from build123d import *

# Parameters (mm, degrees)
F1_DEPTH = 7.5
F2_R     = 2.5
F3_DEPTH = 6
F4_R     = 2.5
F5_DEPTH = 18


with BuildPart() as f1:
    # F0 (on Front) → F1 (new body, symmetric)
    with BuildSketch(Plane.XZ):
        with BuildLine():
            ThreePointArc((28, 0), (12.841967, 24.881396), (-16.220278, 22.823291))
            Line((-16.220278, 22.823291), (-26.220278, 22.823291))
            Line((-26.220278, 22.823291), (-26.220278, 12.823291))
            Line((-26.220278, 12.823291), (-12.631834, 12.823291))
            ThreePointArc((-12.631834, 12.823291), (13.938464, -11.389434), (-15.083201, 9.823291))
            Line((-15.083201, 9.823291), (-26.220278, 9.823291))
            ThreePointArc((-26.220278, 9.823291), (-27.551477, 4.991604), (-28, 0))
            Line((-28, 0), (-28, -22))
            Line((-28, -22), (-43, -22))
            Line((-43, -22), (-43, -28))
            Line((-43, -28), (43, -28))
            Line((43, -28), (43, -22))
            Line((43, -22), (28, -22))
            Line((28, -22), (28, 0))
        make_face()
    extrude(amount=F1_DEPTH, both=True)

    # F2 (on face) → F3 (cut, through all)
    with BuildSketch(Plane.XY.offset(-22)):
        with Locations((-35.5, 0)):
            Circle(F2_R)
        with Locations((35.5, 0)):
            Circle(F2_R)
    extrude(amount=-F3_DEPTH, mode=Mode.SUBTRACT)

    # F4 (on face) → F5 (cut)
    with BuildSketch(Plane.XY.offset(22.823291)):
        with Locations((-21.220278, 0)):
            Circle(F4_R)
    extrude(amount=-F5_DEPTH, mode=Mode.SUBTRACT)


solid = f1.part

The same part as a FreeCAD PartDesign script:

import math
import FreeCAD as App
import Part
import Sketcher

V = App.Vector
Q = App.Units.Quantity

doc = App.newDocument("Part")
body = doc.addObject("PartDesign::Body", "Body")

sketch1 = body.newObject("Sketcher::SketchObject", "Sketch")
sketch1.AttachmentSupport = (doc.getObject("XZ_Plane"), [""])
sketch1.MapMode = "FlatFace"
sketch1.addGeometry([
    Part.ArcOfCircle(Part.Circle(V(0, 0, 0), V(0, 0, 1), 28), math.radians(0), math.radians(125)),
    Part.LineSegment(V(-16.2, 22.8, 0), V(-26.2, 22.8, 0)),
    Part.LineSegment(V(-26.2, 22.8, 0), V(-26.2, 12.8, 0)),
    Part.LineSegment(V(-26.2, 12.8, 0), V(-12.6, 12.8, 0)),
    Part.ArcOfCircle(Part.Circle(V(0, 0, 0), V(0, 0, 1), 18), math.radians(147), math.radians(495)),
    Part.LineSegment(V(-15.1, 9.8, 0), V(-26.2, 9.8, 0)),
    Part.ArcOfCircle(Part.Circle(V(0, 0, 0), V(0, 0, 1), 28), math.radians(159), math.radians(180)),
    Part.LineSegment(V(-28, 0, 0), V(-28, -22, 0)),
    Part.LineSegment(V(-28, -22, 0), V(-43, -22, 0)),
    Part.LineSegment(V(-43, -22, 0), V(-43, -28, 0)),
    Part.LineSegment(V(-43, -28, 0), V(43, -28, 0)),
    Part.LineSegment(V(43, -28, 0), V(43, -22, 0)),
    Part.LineSegment(V(43, -22, 0), V(28, -22, 0)),
    Part.LineSegment(V(28, -22, 0), V(28, 0, 0)),
], False)
sketch1.addConstraint([
    Sketcher.Constraint("Coincident", 0, 2, 1, 1),
    Sketcher.Constraint("Coincident", 1, 2, 2, 1),
    Sketcher.Constraint("Coincident", 2, 2, 3, 1),
    Sketcher.Constraint("Coincident", 3, 2, 4, 2),
    Sketcher.Constraint("Coincident", 4, 1, 5, 1),
    Sketcher.Constraint("Coincident", 5, 2, 6, 1),
    Sketcher.Constraint("Tangent", 6, 2, 7, 1),
    Sketcher.Constraint("Coincident", 7, 2, 8, 1),
    Sketcher.Constraint("Coincident", 8, 2, 9, 1),
    Sketcher.Constraint("Coincident", 9, 2, 10, 1),
    Sketcher.Constraint("Coincident", 10, 2, 11, 1),
    Sketcher.Constraint("Coincident", 11, 2, 12, 1),
    Sketcher.Constraint("Coincident", 12, 2, 13, 1),
    Sketcher.Constraint("Tangent", 13, 2, 0, 1),
    Sketcher.Constraint("Horizontal", 1),
    Sketcher.Constraint("Vertical", 2),
    Sketcher.Constraint("Horizontal", 3),
    Sketcher.Constraint("Horizontal", 5),
    Sketcher.Constraint("Vertical", 7),
    Sketcher.Constraint("Horizontal", 8),
    Sketcher.Constraint("Vertical", 9),
    Sketcher.Constraint("Horizontal", 10),
    Sketcher.Constraint("Vertical", 11),
    Sketcher.Constraint("Horizontal", 12),
    Sketcher.Constraint("Vertical", 13),
    Sketcher.Constraint("Coincident", 0, 3, -1, 1),
    Sketcher.Constraint("Coincident", 4, 3, -1, 1),
    Sketcher.Constraint("Symmetric", 6, 2, 13, 2, -1, 1),
    Sketcher.Constraint("Symmetric", 8, 2, 11, 2, -2),
    Sketcher.Constraint("Vertical", 2, 2, 5, 2),
    Sketcher.Constraint("Equal", 1, 2),
    Sketcher.Constraint("Radius", 0, Q("28.000001 mm")),
    Sketcher.Constraint("Radius", 4, Q("18 mm")),
    Sketcher.Constraint("DistanceX", 1, 2, 1, 1, Q("10 mm")),
    Sketcher.Constraint("DistanceX", 8, 2, 8, 1, Q("15 mm")),
    Sketcher.Constraint("DistanceY", 7, 2, 7, 1, Q("22 mm")),
    Sketcher.Constraint("DistanceY", 9, 2, 9, 1, Q("6 mm")),
    Sketcher.Constraint("DistanceY", 4, 1, 3, 2, Q("3 mm")),
    Sketcher.Constraint("Radius", 6, Q("28.000019 mm")),
])
pad1 = body.newObject("PartDesign::Pad", "Pad")
pad1.Profile = sketch1
pad1.Length = 15
pad1.Midplane = True

sketch2 = body.newObject("Sketcher::SketchObject", "Sketch001")
sketch2.AttachmentSupport = (doc.getObject("XY_Plane"), [""])
sketch2.MapMode = "FlatFace"
sketch2.AttachmentOffset = App.Placement(V(0, 0, -22), App.Rotation())
sketch2.addGeometry([
    Part.Circle(V(-35.5, 0, 0), V(0, 0, 1), 2.5),
    Part.Circle(V(35.5, 0, 0), V(0, 0, 1), 2.5),
], False)
sketch2.addConstraint([
    Sketcher.Constraint("Equal", 0, 1),
    Sketcher.Constraint("Symmetric", 0, 3, 1, 3, -1, 1),
    Sketcher.Constraint("PointOnObject", 0, 3, -1),
    Sketcher.Constraint("Diameter", 0, Q("5 mm")),
    Sketcher.Constraint("DistanceX", 0, 3, 1, 3, Q("71 mm")),
])
pocket1 = body.newObject("PartDesign::Pocket", "Pocket")
pocket1.Profile = sketch2
pocket1.Type = "ThroughAll"

sketch3 = body.newObject("Sketcher::SketchObject", "Sketch002")
sketch3.AttachmentSupport = (doc.getObject("XY_Plane"), [""])
sketch3.MapMode = "FlatFace"
sketch3.AttachmentOffset = App.Placement(V(0, 0, 22.823291), App.Rotation())
sketch3.addGeometry(Part.Circle(V(-21.2, 0, 0), V(0, 0, 1), 2.5), False)
sketch3.addConstraint([
    Sketcher.Constraint("PointOnObject", 0, 3, -1),
    Sketcher.Constraint("Diameter", 0, Q("5 mm")),
    Sketcher.Constraint("DistanceX", 0, 3, -1, 1, Q("21.220278 mm")),
])
pocket2 = body.newObject("PartDesign::Pocket", "Pocket001")
pocket2.Profile = sketch3
pocket2.Length = 18

doc.recompute()
